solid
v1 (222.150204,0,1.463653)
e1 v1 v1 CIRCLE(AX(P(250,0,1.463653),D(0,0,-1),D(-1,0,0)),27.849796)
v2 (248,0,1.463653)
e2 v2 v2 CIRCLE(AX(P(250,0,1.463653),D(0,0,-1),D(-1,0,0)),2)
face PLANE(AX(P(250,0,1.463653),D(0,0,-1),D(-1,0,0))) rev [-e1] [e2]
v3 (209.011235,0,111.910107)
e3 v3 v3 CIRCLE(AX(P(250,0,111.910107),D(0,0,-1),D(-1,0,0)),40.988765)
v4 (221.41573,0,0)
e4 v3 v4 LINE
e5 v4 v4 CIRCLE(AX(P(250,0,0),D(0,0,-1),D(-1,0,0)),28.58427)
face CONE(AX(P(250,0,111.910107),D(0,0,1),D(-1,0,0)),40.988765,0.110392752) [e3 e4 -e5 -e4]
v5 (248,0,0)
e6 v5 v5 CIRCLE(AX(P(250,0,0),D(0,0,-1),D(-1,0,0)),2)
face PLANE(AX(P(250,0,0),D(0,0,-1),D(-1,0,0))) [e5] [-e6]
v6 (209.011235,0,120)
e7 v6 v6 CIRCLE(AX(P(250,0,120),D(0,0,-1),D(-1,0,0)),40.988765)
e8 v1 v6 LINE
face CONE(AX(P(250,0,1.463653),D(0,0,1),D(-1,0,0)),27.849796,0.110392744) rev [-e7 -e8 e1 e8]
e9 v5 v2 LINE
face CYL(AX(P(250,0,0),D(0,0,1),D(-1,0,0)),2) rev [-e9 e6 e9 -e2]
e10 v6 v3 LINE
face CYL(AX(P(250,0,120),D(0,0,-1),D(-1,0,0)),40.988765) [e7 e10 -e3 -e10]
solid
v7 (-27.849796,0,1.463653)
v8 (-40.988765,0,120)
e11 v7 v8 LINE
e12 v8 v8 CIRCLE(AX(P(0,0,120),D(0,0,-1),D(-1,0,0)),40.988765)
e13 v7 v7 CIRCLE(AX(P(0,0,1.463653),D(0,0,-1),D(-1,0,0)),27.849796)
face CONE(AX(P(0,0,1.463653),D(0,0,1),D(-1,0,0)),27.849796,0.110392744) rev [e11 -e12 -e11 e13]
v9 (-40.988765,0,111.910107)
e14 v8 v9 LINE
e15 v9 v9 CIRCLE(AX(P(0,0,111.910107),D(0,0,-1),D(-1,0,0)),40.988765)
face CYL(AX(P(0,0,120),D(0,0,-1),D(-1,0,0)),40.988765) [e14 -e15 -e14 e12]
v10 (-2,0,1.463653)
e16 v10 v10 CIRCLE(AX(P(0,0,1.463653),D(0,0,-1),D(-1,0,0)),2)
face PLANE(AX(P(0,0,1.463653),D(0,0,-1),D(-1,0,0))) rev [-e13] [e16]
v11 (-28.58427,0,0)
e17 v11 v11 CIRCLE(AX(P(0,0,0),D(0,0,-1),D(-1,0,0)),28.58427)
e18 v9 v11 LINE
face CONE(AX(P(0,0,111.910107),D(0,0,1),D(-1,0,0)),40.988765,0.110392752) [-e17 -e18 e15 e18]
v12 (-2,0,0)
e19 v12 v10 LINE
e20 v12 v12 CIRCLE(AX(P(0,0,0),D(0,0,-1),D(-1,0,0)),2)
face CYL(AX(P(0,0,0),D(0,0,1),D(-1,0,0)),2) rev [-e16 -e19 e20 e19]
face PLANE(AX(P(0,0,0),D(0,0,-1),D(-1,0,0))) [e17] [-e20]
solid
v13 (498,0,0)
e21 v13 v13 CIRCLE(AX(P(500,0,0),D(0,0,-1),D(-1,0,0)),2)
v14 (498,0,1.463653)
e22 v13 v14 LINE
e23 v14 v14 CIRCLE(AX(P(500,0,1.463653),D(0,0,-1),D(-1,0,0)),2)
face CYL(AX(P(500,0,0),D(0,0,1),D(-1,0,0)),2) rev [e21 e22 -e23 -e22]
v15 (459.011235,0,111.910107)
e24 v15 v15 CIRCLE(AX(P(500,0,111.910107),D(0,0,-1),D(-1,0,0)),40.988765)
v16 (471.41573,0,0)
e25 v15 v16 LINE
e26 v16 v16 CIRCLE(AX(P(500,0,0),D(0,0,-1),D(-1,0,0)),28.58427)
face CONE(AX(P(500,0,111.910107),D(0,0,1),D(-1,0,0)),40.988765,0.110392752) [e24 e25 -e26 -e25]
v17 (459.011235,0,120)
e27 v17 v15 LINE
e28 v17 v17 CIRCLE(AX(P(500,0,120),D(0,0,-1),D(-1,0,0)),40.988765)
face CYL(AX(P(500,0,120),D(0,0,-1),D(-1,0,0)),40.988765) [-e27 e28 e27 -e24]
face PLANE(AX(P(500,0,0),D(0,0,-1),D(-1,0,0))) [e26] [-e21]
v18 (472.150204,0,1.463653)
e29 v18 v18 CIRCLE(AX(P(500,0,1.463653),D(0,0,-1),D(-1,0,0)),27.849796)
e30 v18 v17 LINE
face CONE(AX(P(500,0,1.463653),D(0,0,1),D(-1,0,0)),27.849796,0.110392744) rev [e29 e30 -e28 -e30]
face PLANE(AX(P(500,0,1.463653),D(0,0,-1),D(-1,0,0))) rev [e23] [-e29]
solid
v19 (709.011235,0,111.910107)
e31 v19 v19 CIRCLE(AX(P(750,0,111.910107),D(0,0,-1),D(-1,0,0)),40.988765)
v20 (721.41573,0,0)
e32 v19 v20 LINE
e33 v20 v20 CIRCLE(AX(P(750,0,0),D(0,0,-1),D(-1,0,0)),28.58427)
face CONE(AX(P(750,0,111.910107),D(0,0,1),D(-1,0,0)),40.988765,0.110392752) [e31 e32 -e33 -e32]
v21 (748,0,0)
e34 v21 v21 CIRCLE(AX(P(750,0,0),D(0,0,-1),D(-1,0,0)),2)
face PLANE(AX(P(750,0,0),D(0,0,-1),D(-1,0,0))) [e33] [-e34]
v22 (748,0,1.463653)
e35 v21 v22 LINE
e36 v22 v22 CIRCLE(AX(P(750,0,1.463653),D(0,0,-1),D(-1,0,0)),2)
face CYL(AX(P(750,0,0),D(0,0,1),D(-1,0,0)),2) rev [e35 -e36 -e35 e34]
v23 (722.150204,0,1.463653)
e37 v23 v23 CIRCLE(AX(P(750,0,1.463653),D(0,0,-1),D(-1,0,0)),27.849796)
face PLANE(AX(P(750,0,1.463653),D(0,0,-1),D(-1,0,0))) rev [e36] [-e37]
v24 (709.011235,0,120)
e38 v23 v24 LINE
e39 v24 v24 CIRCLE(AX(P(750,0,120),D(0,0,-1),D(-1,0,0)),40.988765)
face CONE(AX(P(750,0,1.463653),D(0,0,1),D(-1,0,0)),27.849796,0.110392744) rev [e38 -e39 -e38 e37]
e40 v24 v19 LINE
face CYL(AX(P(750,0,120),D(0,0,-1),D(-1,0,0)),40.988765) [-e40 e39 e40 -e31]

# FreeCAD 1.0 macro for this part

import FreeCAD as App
import Part
import Sketcher
from FreeCAD import Vector


def add_polygon(sketch, points):
    """Adds a closed chain of lines whose ends are joined by coincident constraints."""
    first, n = sketch.GeometryCount, len(points)
    for a, b in zip(points, points[1:] + points[:1]):
        sketch.addGeometry(Part.LineSegment(App.Vector(*a, 0), App.Vector(*b, 0)), False)
    for i in range(n):
        sketch.addConstraint(Sketcher.Constraint("Coincident", first + i, 2, first + (i + 1) % n, 1))

doc = App.newDocument("Part")
body = doc.addObject("PartDesign::Body", "Body")

sketch1 = body.newObject("Sketcher::SketchObject", "Sketch")
sketch1.AttachmentSupport = (doc.getObject("XZ_Plane"), [""])
sketch1.MapMode = "FlatFace"
add_polygon(sketch1, [(-28.6, 0), (-2, 0), (-2, 1.5), (-27.8, 1.5), (-41, 120), (-41, 111.9)])
sketch1.addConstraint(Sketcher.Constraint("Horizontal", 0))
sketch1.addConstraint(Sketcher.Constraint("Vertical", 1))
sketch1.addConstraint(Sketcher.Constraint("Horizontal", 2))
sketch1.addConstraint(Sketcher.Constraint("Vertical", 4))
sketch1.addConstraint(Sketcher.Constraint("PointOnObject", 0, 2, -1))
sketch1.addConstraint(Sketcher.Constraint("Parallel", 3, 5))
sketch1.addConstraint(Sketcher.Constraint("DistanceX", 0, 2, -1, 1, 2.0))
sketch1.addConstraint(Sketcher.Constraint("DistanceY", -1, 1, 3, 2, 120.0))
sketch1.addConstraint(Sketcher.Constraint("DistanceX", 0, 1, 0, 2, 26.58427))
sketch1.addConstraint(Sketcher.Constraint("DistanceX", 2, 2, 2, 1, 25.849796))
sketch1.addConstraint(Sketcher.Constraint("DistanceY", 1, 1, 1, 2, 1.463653))
sketch1.addConstraint(Sketcher.Constraint("DistanceY", 4, 2, 4, 1, 8.089893))
revolution = body.newObject("PartDesign::Revolution", "Revolution")
revolution.Profile = sketch1
revolution.ReferenceAxis = (sketch1, ["V_Axis"])
revolution.Angle = 360
body2 = doc.addObject("PartDesign::Body", "Body001")

sketch2 = body2.newObject("Sketcher::SketchObject", "Sketch001")
sketch2.AttachmentSupport = (doc.getObject("XZ_Plane001"), [""])
sketch2.MapMode = "FlatFace"
add_polygon(sketch2, [(221.4, 0), (248, 0), (248, 1.5), (222.2, 1.5), (209, 120), (209, 111.9)])
sketch2.addGeometry(Part.LineSegment(Vector(250, 120, 0), Vector(250, 0, 0)), True)
sketch2.addConstraint(Sketcher.Constraint("Horizontal", 0))
sketch2.addConstraint(Sketcher.Constraint("Vertical", 1))
sketch2.addConstraint(Sketcher.Constraint("Horizontal", 2))
sketch2.addConstraint(Sketcher.Constraint("Vertical", 4))
sketch2.addConstraint(Sketcher.Constraint("Vertical", 6))
sketch2.addConstraint(Sketcher.Constraint("PointOnObject", 0, 2, -1))
sketch2.addConstraint(Sketcher.Constraint("PointOnObject", 6, 2, -1))
sketch2.addConstraint(Sketcher.Constraint("Parallel", 3, 5))
sketch2.addConstraint(Sketcher.Constraint("Horizontal", 3, 2, 6, 1))
sketch2.addConstraint(Sketcher.Constraint("DistanceY", 6, 2, 6, 1, 120.0))
sketch2.addConstraint(Sketcher.Constraint("DistanceX", -1, 1, 0, 2, 248.0))
sketch2.addConstraint(Sketcher.Constraint("DistanceX", -1, 1, 6, 1, 250.0))
sketch2.addConstraint(Sketcher.Constraint("DistanceX", 0, 1, 0, 2, 26.58427))
sketch2.addConstraint(Sketcher.Constraint("DistanceX", 2, 2, 2, 1, 25.849796))
sketch2.addConstraint(Sketcher.Constraint("DistanceY", 1, 1, 1, 2, 1.463653))
sketch2.addConstraint(Sketcher.Constraint("DistanceY", 4, 2, 4, 1, 8.089893))
revolution2 = body2.newObject("PartDesign::Revolution", "Revolution001")
revolution2.Profile = sketch2
revolution2.ReferenceAxis = (sketch2, ["Axis0"])
revolution2.Angle = 360
body3 = doc.addObject("PartDesign::Body", "Body002")

sketch3 = body3.newObject("Sketcher::SketchObject", "Sketch002")
sketch3.AttachmentSupport = (doc.getObject("XZ_Plane002"), [""])
sketch3.MapMode = "FlatFace"
add_polygon(sketch3, [(471.4, 0), (498, 0), (498, 1.5), (472.2, 1.5), (459, 120), (459, 111.9)])
sketch3.addGeometry(Part.LineSegment(Vector(500, 120, 0), Vector(500, 0, 0)), True)
sketch3.addConstraint(Sketcher.Constraint("Horizontal", 0))
sketch3.addConstraint(Sketcher.Constraint("Vertical", 1))
sketch3.addConstraint(Sketcher.Constraint("Horizontal", 2))
sketch3.addConstraint(Sketcher.Constraint("Vertical", 4))
sketch3.addConstraint(Sketcher.Constraint("Vertical", 6))
sketch3.addConstraint(Sketcher.Constraint("PointOnObject", 0, 2, -1))
sketch3.addConstraint(Sketcher.Constraint("PointOnObject", 6, 2, -1))
sketch3.addConstraint(Sketcher.Constraint("Parallel", 3, 5))
sketch3.addConstraint(Sketcher.Constraint("Horizontal", 3, 2, 6, 1))
sketch3.addConstraint(Sketcher.Constraint("DistanceY", 6, 2, 6, 1, 120.0))
sketch3.addConstraint(Sketcher.Constraint("DistanceX", -1, 1, 0, 2, 498.0))
sketch3.addConstraint(Sketcher.Constraint("DistanceX", -1, 1, 6, 1, 500.0))
sketch3.addConstraint(Sketcher.Constraint("DistanceX", 0, 1, 0, 2, 26.58427))
sketch3.addConstraint(Sketcher.Constraint("DistanceX", 2, 2, 2, 1, 25.849796))
sketch3.addConstraint(Sketcher.Constraint("DistanceY", 1, 1, 1, 2, 1.463653))
sketch3.addConstraint(Sketcher.Constraint("DistanceY", 4, 2, 4, 1, 8.089893))
revolution3 = body3.newObject("PartDesign::Revolution", "Revolution002")
revolution3.Profile = sketch3
revolution3.ReferenceAxis = (sketch3, ["Axis0"])
revolution3.Angle = 360
body4 = doc.addObject("PartDesign::Body", "Body003")

sketch4 = body4.newObject("Sketcher::SketchObject", "Sketch003")
sketch4.AttachmentSupport = (doc.getObject("XZ_Plane003"), [""])
sketch4.MapMode = "FlatFace"
add_polygon(sketch4, [(721.4, 0), (748, 0), (748, 1.5), (722.2, 1.5), (709, 120), (709, 111.9)])
sketch4.addGeometry(Part.LineSegment(Vector(750, 120, 0), Vector(750, 0, 0)), True)
sketch4.addConstraint(Sketcher.Constraint("Horizontal", 0))
sketch4.addConstraint(Sketcher.Constraint("Vertical", 1))
sketch4.addConstraint(Sketcher.Constraint("Horizontal", 2))
sketch4.addConstraint(Sketcher.Constraint("Vertical", 4))
sketch4.addConstraint(Sketcher.Constraint("Vertical", 6))
sketch4.addConstraint(Sketcher.Constraint("PointOnObject", 0, 2, -1))
sketch4.addConstraint(Sketcher.Constraint("PointOnObject", 6, 2, -1))
sketch4.addConstraint(Sketcher.Constraint("Parallel", 3, 5))
sketch4.addConstraint(Sketcher.Constraint("Horizontal", 3, 2, 6, 1))
sketch4.addConstraint(Sketcher.Constraint("DistanceY", 6, 2, 6, 1, 120.0))
sketch4.addConstraint(Sketcher.Constraint("DistanceX", -1, 1, 0, 2, 748.0))
sketch4.addConstraint(Sketcher.Constraint("DistanceX", -1, 1, 6, 1, 750.0))
sketch4.addConstraint(Sketcher.Constraint("DistanceX", 0, 1, 0, 2, 26.58427))
sketch4.addConstraint(Sketcher.Constraint("DistanceX", 2, 2, 2, 1, 25.849796))
sketch4.addConstraint(Sketcher.Constraint("DistanceY", 1, 1, 1, 2, 1.463653))
sketch4.addConstraint(Sketcher.Constraint("DistanceY", 4, 2, 4, 1, 8.089893))
revolution4 = body4.newObject("PartDesign::Revolution", "Revolution003")
revolution4.Profile = sketch4
revolution4.ReferenceAxis = (sketch4, ["Axis0"])
revolution4.Angle = 360

doc.recompute()
